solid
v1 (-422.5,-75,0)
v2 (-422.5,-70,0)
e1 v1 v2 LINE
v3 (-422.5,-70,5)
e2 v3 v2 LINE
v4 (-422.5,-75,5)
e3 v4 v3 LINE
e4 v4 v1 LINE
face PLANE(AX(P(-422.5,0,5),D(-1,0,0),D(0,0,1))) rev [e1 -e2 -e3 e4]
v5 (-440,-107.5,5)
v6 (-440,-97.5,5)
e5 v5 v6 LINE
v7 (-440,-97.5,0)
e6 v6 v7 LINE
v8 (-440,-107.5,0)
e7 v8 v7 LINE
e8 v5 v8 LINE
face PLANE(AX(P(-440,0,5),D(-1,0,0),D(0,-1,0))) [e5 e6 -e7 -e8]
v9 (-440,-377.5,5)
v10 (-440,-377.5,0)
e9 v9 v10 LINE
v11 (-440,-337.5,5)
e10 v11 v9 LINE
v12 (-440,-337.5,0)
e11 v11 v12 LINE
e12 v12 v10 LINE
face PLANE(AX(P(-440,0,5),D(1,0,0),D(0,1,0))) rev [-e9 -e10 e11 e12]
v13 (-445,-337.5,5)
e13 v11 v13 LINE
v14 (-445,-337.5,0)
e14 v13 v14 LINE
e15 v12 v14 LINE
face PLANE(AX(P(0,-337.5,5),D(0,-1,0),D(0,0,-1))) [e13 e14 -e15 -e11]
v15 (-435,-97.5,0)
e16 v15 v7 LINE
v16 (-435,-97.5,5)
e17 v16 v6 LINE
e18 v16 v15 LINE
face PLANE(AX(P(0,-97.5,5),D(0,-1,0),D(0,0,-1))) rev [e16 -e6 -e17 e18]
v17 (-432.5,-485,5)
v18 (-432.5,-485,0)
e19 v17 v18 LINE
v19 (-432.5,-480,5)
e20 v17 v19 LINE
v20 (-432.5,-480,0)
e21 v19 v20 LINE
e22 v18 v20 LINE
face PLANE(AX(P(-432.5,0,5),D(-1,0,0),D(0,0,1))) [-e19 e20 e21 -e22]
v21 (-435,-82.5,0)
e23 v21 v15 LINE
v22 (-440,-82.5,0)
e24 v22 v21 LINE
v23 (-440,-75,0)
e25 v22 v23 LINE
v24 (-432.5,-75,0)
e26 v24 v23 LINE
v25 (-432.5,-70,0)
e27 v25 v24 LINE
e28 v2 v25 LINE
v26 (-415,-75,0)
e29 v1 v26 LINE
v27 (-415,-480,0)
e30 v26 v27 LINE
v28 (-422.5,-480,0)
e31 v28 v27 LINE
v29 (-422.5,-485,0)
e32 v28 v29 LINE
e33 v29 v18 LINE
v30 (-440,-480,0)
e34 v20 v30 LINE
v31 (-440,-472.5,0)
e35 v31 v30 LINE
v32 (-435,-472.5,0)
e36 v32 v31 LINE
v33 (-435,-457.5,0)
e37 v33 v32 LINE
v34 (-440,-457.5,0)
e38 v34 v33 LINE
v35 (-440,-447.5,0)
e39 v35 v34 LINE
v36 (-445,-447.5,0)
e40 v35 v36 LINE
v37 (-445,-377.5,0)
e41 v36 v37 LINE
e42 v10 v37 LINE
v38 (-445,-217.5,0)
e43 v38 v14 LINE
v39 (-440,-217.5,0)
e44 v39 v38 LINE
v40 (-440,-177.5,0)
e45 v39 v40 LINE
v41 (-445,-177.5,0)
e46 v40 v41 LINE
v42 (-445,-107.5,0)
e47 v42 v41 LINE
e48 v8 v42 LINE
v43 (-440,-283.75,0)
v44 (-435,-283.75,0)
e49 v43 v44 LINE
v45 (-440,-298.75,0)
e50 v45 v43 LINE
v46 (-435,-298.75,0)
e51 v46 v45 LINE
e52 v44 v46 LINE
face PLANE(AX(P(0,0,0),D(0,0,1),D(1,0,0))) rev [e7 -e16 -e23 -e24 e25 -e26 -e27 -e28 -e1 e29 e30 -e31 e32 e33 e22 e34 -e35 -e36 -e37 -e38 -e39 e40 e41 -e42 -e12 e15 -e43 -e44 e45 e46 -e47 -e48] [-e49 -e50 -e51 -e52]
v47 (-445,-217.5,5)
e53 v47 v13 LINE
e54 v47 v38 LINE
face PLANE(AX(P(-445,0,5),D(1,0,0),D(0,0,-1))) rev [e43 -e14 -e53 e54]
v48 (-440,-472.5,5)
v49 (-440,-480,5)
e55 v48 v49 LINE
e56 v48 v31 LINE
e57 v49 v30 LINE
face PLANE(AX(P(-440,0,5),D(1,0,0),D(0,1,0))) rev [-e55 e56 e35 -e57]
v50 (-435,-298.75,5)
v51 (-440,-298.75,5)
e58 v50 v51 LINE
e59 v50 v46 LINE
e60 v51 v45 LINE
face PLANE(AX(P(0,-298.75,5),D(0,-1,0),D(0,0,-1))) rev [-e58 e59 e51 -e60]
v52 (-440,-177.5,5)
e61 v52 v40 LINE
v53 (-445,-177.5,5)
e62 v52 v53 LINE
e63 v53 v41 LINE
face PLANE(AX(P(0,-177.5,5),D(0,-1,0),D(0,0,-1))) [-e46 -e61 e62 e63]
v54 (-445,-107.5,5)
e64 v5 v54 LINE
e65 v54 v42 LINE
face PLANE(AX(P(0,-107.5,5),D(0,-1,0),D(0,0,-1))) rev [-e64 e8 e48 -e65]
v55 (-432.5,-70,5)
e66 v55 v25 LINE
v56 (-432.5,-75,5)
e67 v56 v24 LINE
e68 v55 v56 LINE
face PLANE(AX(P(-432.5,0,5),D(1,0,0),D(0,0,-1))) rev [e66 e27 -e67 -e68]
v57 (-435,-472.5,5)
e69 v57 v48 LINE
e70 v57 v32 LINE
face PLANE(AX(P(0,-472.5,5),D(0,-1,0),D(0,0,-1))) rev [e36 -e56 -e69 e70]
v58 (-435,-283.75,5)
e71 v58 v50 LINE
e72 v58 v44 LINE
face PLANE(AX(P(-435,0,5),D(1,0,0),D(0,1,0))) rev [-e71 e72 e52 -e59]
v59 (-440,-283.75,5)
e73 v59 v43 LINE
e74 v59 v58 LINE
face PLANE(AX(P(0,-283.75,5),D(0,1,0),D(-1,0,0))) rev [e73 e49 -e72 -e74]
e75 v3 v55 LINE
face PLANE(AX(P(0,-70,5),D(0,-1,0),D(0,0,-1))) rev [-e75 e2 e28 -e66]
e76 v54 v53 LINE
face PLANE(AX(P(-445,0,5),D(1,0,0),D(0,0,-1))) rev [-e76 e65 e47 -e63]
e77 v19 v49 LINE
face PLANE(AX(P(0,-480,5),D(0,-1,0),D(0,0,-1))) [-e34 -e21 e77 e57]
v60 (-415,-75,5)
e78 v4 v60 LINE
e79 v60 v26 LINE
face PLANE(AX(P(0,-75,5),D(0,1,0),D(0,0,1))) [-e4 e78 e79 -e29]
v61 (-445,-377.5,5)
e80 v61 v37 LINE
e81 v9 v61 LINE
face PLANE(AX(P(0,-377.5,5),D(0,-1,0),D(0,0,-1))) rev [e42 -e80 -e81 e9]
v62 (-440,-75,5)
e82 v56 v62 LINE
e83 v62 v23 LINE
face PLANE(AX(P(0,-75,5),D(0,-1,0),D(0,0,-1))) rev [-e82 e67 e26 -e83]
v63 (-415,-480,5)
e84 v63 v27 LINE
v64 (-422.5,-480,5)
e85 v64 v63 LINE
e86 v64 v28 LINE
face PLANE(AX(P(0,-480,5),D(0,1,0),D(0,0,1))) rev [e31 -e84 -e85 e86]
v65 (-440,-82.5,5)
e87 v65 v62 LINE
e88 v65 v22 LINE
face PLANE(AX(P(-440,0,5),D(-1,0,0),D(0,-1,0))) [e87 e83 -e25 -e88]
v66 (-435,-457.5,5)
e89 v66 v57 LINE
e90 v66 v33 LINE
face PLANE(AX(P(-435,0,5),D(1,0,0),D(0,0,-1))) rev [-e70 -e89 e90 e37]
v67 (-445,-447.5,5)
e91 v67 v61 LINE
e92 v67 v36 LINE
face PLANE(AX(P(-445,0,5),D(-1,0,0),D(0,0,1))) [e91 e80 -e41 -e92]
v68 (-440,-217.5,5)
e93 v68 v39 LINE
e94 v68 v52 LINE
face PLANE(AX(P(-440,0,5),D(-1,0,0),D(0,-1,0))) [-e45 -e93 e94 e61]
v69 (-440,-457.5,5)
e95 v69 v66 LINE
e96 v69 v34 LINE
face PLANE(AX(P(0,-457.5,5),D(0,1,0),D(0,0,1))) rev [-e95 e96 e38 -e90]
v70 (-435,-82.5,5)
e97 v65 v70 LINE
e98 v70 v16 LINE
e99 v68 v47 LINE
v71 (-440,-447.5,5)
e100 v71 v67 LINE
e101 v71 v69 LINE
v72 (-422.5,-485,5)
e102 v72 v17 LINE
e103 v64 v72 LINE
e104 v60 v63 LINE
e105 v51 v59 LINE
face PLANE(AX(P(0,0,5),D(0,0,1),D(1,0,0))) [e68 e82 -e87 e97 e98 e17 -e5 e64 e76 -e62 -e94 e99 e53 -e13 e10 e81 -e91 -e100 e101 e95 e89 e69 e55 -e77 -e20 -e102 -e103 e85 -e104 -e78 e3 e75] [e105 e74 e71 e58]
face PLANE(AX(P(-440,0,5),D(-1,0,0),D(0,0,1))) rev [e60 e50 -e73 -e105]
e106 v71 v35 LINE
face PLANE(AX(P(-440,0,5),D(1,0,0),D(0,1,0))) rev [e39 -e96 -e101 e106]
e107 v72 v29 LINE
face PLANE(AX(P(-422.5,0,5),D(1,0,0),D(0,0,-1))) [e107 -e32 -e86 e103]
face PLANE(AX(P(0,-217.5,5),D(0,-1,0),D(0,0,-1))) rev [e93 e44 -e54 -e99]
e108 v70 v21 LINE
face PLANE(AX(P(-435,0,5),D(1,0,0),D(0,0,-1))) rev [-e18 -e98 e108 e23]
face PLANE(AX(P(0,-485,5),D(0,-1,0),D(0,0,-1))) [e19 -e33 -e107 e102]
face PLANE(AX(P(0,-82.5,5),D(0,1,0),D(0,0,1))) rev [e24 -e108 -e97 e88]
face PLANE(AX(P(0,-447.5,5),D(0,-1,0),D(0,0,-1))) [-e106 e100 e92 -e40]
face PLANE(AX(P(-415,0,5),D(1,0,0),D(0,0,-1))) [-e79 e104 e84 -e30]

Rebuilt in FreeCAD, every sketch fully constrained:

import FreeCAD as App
import Part
import Sketcher
from FreeCAD import Vector


def add_polygon(sketch, points):
    """Adds a closed chain of lines whose ends are joined by coincident constraints."""
    first, n = sketch.GeometryCount, len(points)
    for a, b in zip(points, points[1:] + points[:1]):
        sketch.addGeometry(Part.LineSegment(App.Vector(*a, 0), App.Vector(*b, 0)), False)
    for i in range(n):
        sketch.addConstraint(Sketcher.Constraint("Coincident", first + i, 2, first + (i + 1) % n, 1))

doc = App.newDocument("Part")
body = doc.addObject("PartDesign::Body", "Body")

# Sketch on XY plane
sketch1 = body.newObject("Sketcher::SketchObject", "Sketch")
sketch1.AttachmentSupport = (doc.getObject("XY_Plane"), [""])
sketch1.MapMode = "FlatFace"
add_polygon(sketch1, [(-440, -178), (-440, -218), (-445, -218), (-445, -338), (-440, -338), (-440, -378), (-445, -378), (-445, -448), (-440, -448), (-440, -458), (-435, -458), (-435, -472), (-440, -472), (-440, -480), (-432, -480), (-432, -485), (-422, -485), (-422, -480), (-415, -480), (-415, -75), (-422, -75), (-422, -70), (-432, -70), (-432, -75), (-440, -75), (-440, -82), (-435, -82), (-435, -98), (-440, -98), (-440, -108), (-445, -108), (-445, -178)])  # lines 0-31
add_polygon(sketch1, [(-440, -299), (-440, -284), (-435, -284), (-435, -299)])  # lines 32-35
sketch1.addConstraint([
    Sketcher.Constraint("Vertical", 0),
    Sketcher.Constraint("Horizontal", 1),
    Sketcher.Constraint("Vertical", 2),
    Sketcher.Constraint("Horizontal", 3),
    Sketcher.Constraint("Vertical", 4),
    Sketcher.Constraint("Horizontal", 5),
    Sketcher.Constraint("Vertical", 6),
    Sketcher.Constraint("Horizontal", 7),
    Sketcher.Constraint("Vertical", 8),
    Sketcher.Constraint("Horizontal", 9),
    Sketcher.Constraint("Vertical", 10),
    Sketcher.Constraint("Horizontal", 11),
    Sketcher.Constraint("Vertical", 12),
    Sketcher.Constraint("Horizontal", 13),
    Sketcher.Constraint("Vertical", 14),
    Sketcher.Constraint("Horizontal", 15),
    Sketcher.Constraint("Vertical", 16),
    Sketcher.Constraint("Horizontal", 17),
    Sketcher.Constraint("Vertical", 18),
    Sketcher.Constraint("Horizontal", 19),
    Sketcher.Constraint("Vertical", 20),
    Sketcher.Constraint("Horizontal", 21),
    Sketcher.Constraint("Vertical", 22),
    Sketcher.Constraint("Horizontal", 23),
    Sketcher.Constraint("Vertical", 24),
    Sketcher.Constraint("Horizontal", 25),
    Sketcher.Constraint("Vertical", 26),
    Sketcher.Constraint("Horizontal", 27),
    Sketcher.Constraint("Vertical", 28),
    Sketcher.Constraint("Horizontal", 29),
    Sketcher.Constraint("Vertical", 30),
    Sketcher.Constraint("Horizontal", 31),
    Sketcher.Constraint("Vertical", 32),
    Sketcher.Constraint("Horizontal", 33),
    Sketcher.Constraint("Vertical", 34),
    Sketcher.Constraint("Horizontal", 35),
    Sketcher.Constraint("Horizontal", 13, 2, 16, 2),
    Sketcher.Constraint("Horizontal", 19, 2, 22, 2),
    Sketcher.Constraint("Vertical", 0, 2, 3, 2),
    Sketcher.Constraint("Vertical", 2, 2, 5, 2),
    Sketcher.Constraint("Vertical", 4, 2, 7, 2),
    Sketcher.Constraint("Vertical", 8, 2, 11, 2),
    Sketcher.Constraint("Vertical", 16, 2, 19, 2),
    Sketcher.Constraint("Vertical", 14, 2, 21, 2),
    Sketcher.Constraint("Vertical", 12, 2, 23, 2),
    Sketcher.Constraint("Vertical", 10, 2, 25, 2),
    Sketcher.Constraint("Vertical", 24, 2, 27, 2),
    Sketcher.Constraint("Vertical", 6, 2, 29, 2),
    Sketcher.Constraint("Vertical", 31, 2, 32, 2),
    Sketcher.Constraint("Vertical", 26, 2, 33, 2),
    Sketcher.Constraint("Equal", 7, 9),
    Sketcher.Constraint("Equal", 13, 17),
    Sketcher.Constraint("Equal", 0, 4),
    Sketcher.Constraint("Equal", 21, 8),
    Sketcher.Constraint("Equal", 23, 12),
    Sketcher.Constraint("Equal", 35, 14),
    Sketcher.Constraint("Equal", 16, 20),
    Sketcher.Constraint("Equal", 12, 24),
    Sketcher.Constraint("Equal", 10, 26),
    Sketcher.Constraint("Equal", 8, 28),
    Sketcher.Constraint("Equal", 6, 30),
    Sketcher.Constraint("Equal", 26, 32),
    Sketcher.Constraint("DistanceX", 1, 2, 1, 1, 5.0),
    Sketcher.Constraint("DistanceX", 15, 1, 15, 2, 10.0),
    Sketcher.Constraint("DistanceY", 0, 2, 0, 1, 40.0),
    Sketcher.Constraint("DistanceY", 2, 2, 2, 1, 120.0),
    Sketcher.Constraint("DistanceY", 6, 2, 6, 1, 70.0),
    Sketcher.Constraint("DistanceY", 10, 2, 10, 1, 15.0),
    Sketcher.Constraint("DistanceY", 18, 1, 18, 2, 405.0),
    Sketcher.Constraint("DistanceX", 0, 2, -1, 1, 440.0),
    Sketcher.Constraint("DistanceY", 12, 2, -1, 1, 480.0),
    Sketcher.Constraint("DistanceY", 32, 2, -1, 1, 283.75),
])
pad1 = body.newObject("PartDesign::Pad", "Pad")
pad1.Profile = sketch1
pad1.Length = 5

doc.recompute()
